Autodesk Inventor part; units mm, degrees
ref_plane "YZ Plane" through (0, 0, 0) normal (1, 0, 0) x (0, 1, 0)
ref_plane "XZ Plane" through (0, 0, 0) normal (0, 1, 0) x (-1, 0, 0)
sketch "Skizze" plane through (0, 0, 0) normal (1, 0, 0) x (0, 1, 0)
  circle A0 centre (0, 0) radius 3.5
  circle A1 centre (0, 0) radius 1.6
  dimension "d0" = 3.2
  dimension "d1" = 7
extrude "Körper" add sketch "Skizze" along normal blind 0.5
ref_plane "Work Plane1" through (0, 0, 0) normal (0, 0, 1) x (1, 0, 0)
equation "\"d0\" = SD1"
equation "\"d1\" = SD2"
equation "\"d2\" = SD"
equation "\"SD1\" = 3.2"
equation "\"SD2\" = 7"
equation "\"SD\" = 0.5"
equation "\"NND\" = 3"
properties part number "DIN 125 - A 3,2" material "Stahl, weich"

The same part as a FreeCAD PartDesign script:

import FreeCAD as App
import Part
import Sketcher

doc = App.newDocument("Part")
params = doc.addObject("Spreadsheet::Sheet", "Params")
for row, (alias, value) in enumerate([
    ("sketch1_diameter", "7 mm"),
    ("sketch1_diameter2", "3.2 mm"),
    ("pad1_length", "0.5 mm"),
], start=1):
    params.set(f"A{row}", alias)
    params.set(f"B{row}", "=" + value)
    params.setAlias(f"B{row}", alias)

body = doc.addObject("PartDesign::Body", "Body")

sketch1 = body.newObject("Sketcher::SketchObject", "Sketch")
sketch1.AttachmentSupport = (doc.getObject("YZ_Plane"), [""])
sketch1.MapMode = "FlatFace"
sketch1.addGeometry(Part.Circle(App.Vector(0, 0, 0), App.Vector(0, 0, 1), 3.5), False)
sketch1.addGeometry(Part.Circle(App.Vector(0, 0, 0), App.Vector(0, 0, 1), 1.6), False)
sketch1.addConstraint(Sketcher.Constraint("Coincident", 0, 3, -1, 1))
sketch1.addConstraint(Sketcher.Constraint("Coincident", 1, 3, -1, 1))
sketch1.addConstraint(Sketcher.Constraint("Diameter", 0, 7.0))
sketch1.addConstraint(Sketcher.Constraint("Diameter", 1, 3.2))
sketch1.setExpression("Constraints[2]", "Params.sketch1_diameter")
sketch1.setExpression("Constraints[3]", "Params.sketch1_diameter2")
pad1 = body.newObject("PartDesign::Pad", "Pad")
pad1.Profile = sketch1
pad1.setExpression("Length", "Params.pad1_length")

doc.recompute()
